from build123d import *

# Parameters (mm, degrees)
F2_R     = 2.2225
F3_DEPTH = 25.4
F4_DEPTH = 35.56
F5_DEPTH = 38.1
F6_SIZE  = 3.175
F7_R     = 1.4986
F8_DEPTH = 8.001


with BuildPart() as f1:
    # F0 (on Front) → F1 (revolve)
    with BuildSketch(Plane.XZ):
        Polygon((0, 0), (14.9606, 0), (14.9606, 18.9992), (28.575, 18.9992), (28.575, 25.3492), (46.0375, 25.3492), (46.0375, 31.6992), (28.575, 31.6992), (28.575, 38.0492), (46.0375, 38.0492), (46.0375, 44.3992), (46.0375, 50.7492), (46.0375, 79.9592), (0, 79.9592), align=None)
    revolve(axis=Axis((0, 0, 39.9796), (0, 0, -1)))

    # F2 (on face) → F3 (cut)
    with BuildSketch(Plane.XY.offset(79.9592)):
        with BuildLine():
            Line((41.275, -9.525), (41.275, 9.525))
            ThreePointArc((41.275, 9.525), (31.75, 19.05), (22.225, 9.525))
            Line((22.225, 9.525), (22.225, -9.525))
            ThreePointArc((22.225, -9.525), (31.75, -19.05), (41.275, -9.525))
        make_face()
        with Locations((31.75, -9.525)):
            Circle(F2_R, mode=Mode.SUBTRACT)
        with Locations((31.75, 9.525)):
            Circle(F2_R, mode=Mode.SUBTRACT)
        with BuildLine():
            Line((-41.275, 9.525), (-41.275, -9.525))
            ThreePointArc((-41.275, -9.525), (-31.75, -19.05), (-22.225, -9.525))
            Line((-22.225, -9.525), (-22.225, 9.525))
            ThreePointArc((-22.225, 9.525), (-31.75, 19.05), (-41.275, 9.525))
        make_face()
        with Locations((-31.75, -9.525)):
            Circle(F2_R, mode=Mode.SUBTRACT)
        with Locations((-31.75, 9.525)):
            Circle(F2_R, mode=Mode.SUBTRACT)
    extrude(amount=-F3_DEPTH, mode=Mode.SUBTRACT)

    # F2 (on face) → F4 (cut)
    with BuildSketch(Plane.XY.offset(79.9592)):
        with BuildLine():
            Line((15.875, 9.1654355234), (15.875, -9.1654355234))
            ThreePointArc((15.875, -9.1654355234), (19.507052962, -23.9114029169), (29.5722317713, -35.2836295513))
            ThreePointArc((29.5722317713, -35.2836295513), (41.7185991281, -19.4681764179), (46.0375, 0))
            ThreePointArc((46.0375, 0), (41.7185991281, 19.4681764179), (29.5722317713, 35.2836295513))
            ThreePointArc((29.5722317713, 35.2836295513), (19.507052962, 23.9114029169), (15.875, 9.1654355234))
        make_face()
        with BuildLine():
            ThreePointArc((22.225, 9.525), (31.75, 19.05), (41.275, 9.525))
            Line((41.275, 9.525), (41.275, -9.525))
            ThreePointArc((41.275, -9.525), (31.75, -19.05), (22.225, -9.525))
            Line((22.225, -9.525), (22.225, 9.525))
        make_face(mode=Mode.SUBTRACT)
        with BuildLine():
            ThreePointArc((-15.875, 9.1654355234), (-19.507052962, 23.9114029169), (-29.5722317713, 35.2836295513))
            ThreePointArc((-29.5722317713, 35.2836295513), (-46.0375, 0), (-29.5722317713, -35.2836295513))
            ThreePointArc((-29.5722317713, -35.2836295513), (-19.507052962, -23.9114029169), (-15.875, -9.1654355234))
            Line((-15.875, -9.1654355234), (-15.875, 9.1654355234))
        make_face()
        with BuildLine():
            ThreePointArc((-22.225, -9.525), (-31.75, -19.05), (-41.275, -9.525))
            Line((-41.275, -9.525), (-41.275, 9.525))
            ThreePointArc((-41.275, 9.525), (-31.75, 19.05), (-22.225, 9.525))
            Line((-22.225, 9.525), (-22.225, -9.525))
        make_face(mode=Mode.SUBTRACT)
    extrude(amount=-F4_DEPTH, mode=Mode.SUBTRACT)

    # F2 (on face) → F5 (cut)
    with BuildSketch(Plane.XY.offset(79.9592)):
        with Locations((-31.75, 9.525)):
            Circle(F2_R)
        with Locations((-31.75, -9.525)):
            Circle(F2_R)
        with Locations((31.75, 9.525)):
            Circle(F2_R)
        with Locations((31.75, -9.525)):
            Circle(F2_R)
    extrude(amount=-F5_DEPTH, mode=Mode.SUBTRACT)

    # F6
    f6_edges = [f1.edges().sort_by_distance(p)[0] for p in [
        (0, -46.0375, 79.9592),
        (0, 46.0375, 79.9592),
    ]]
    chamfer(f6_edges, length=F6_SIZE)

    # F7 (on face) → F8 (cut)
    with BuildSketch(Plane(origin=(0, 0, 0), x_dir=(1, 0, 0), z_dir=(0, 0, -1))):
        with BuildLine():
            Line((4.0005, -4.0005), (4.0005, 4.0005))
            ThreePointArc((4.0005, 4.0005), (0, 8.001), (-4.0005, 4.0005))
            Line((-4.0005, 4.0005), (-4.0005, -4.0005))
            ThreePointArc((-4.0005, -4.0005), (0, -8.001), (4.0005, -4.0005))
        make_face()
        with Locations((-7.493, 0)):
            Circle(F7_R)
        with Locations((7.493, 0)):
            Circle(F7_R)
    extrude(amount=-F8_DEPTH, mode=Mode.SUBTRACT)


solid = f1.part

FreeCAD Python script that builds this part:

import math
import FreeCAD as App
import Part
import Sketcher

V = App.Vector
Q = App.Units.Quantity


def edges_at(feature, points):
    """Names of the edges that pass closest to the given points."""
    edges = feature.Shape.Edges
    near = lambda p: min(range(len(edges)), key=lambda i: edges[i].distToShape(Part.Vertex(*p))[0])
    return sorted({f"Edge{near(p) + 1}" for p in points})

doc = App.newDocument("Part")
params = doc.addObject("Spreadsheet::Sheet", "Params")
for row, (alias, value) in enumerate([
    ("sketch1_height", "0.25 in"),
    ("sketch1_height2", "1.65 in"),
    ("sketch1_width", "0.589 in"),
    ("sketch1_width2", "0.536 in"),
    ("sketch1_width3", "0.6875 in"),
    ("revolution_angle", "360 deg"),
    ("sketch2_diameter", "0.175 in"),
    ("sketch2_radius", "0.375 in"),
    ("sketch2_height", "0.75 in"),
    ("pocket1_length", "1 in"),
    ("sketch3_radius", "1.25 in"),
    ("sketch3_radius2", "1.8125 in"),
    ("sketch3_radius3", "0.375 in"),
    ("sketch3_height", "0.75 in"),
    ("pocket2_length", "1.4 in"),
    ("sketch4_diameter", "0.175 in"),
    ("pocket3_length", "1.5 in"),
    ("chamfer_size", "0.125 in"),
    ("sketch5_diameter", "0.118 in"),
    ("sketch5_height", "0.315 in"),
    ("pocket4_length", "0.315 in"),
], start=1):
    params.set(f"A{row}", alias)
    params.set(f"B{row}", "=" + value)
    params.setAlias(f"B{row}", alias)

body = doc.addObject("PartDesign::Body", "Body")

sketch1 = body.newObject("Sketcher::SketchObject", "Sketch")
sketch1.AttachmentSupport = (doc.getObject("XZ_Plane"), [""])
sketch1.MapMode = "FlatFace"
sketch1.addGeometry([
    Part.LineSegment(V(0, 0, 0), V(15, 0, 0)),
    Part.LineSegment(V(15, 0, 0), V(15, 19, 0)),
    Part.LineSegment(V(15, 19, 0), V(29, 19, 0)),
    Part.LineSegment(V(29, 19, 0), V(29, 25, 0)),
    Part.LineSegment(V(29, 25, 0), V(46, 25, 0)),
    Part.LineSegment(V(46, 25, 0), V(46, 32, 0)),
    Part.LineSegment(V(46, 32, 0), V(29, 32, 0)),
    Part.LineSegment(V(29, 32, 0), V(29, 38, 0)),
    Part.LineSegment(V(29, 38, 0), V(46, 38, 0)),
    Part.LineSegment(V(46, 38, 0), V(46, 80, 0)),
    Part.LineSegment(V(46, 80, 0), V(0, 80, 0)),
    Part.LineSegment(V(0, 80, 0), V(0, 0, 0)),
], False)
sketch1.addConstraint([
    Sketcher.Constraint("Coincident", 0, 2, 1, 1),
    Sketcher.Constraint("Coincident", 1, 2, 2, 1),
    Sketcher.Constraint("Coincident", 2, 2, 3, 1),
    Sketcher.Constraint("Coincident", 3, 2, 4, 1),
    Sketcher.Constraint("Coincident", 4, 2, 5, 1),
    Sketcher.Constraint("Coincident", 5, 2, 6, 1),
    Sketcher.Constraint("Coincident", 6, 2, 7, 1),
    Sketcher.Constraint("Coincident", 7, 2, 8, 1),
    Sketcher.Constraint("Coincident", 8, 2, 9, 1),
    Sketcher.Constraint("Coincident", 9, 2, 10, 1),
    Sketcher.Constraint("Coincident", 10, 2, 11, 1),
    Sketcher.Constraint("Coincident", 11, 2, 0, 1),
    Sketcher.Constraint("Horizontal", 0),
    Sketcher.Constraint("Vertical", 1),
    Sketcher.Constraint("Horizontal", 2),
    Sketcher.Constraint("Vertical", 3),
    Sketcher.Constraint("Horizontal", 4),
    Sketcher.Constraint("Vertical", 5),
    Sketcher.Constraint("Horizontal", 6),
    Sketcher.Constraint("Vertical", 7),
    Sketcher.Constraint("Horizontal", 8),
    Sketcher.Constraint("Vertical", 9),
    Sketcher.Constraint("Horizontal", 10),
    Sketcher.Constraint("Vertical", 11),
    Sketcher.Constraint("Coincident", 11, 2, -1, 1),
    Sketcher.Constraint("Vertical", 3, 2, 6, 2),
    Sketcher.Constraint("Vertical", 5, 2, 8, 2),
    Sketcher.Constraint("Equal", 3, 5),
    Sketcher.Constraint("Equal", 5, 7),
    Sketcher.Constraint("DistanceY", 3, 1, 3, 2, Q("0.25 in")),
    Sketcher.Constraint("DistanceY", 9, 1, 9, 2, Q("1.65 in")),
    Sketcher.Constraint("DistanceX", 0, 1, 0, 2, Q("0.589 in")),
    Sketcher.Constraint("DistanceX", 2, 1, 2, 2, Q("0.536 in")),
    Sketcher.Constraint("DistanceX", 4, 1, 4, 2, Q("0.6875 in")),
    Sketcher.Constraint("DistanceY", 1, 1, 1, 2, Q("0.748 in")),
])
sketch1.setExpression("Constraints[29]", "Params.sketch1_height")
sketch1.setExpression("Constraints[30]", "Params.sketch1_height2")
sketch1.setExpression("Constraints[31]", "Params.sketch1_width")
sketch1.setExpression("Constraints[32]", "Params.sketch1_width2")
sketch1.setExpression("Constraints[33]", "Params.sketch1_width3")
revolution = body.newObject("PartDesign::Revolution", "Revolution")
revolution.Profile = sketch1
revolution.ReferenceAxis = (sketch1, ["V_Axis"])
revolution.setExpression("Angle", "Params.revolution_angle")

sketch2 = body.newObject("Sketcher::SketchObject", "Sketch001")
sketch2.AttachmentSupport = (doc.getObject("XY_Plane"), [""])
sketch2.MapMode = "FlatFace"
sketch2.AttachmentOffset = App.Placement(V(0, 0, 3.148 * 25.4), App.Rotation())
sketch2.addGeometry([
    Part.LineSegment(V(41.3, -9.5, 0), V(41.3, 9.5, 0)),
    Part.ArcOfCircle(Part.Circle(V(31.8, 9.5, 0), V(0, 0, 1), 9.5), math.radians(0), math.radians(180)),
    Part.LineSegment(V(22.2, 9.5, 0), V(22.2, -9.5, 0)),
    Part.ArcOfCircle(Part.Circle(V(31.8, -9.5, 0), V(0, 0, 1), 9.5), math.radians(180), math.radians(360)),
    Part.Circle(V(31.8, -9.5, 0), V(0, 0, 1), 2.2),
    Part.Circle(V(31.8, 9.5, 0), V(0, 0, 1), 2.2),
    Part.LineSegment(V(-41.3, 9.5, 0), V(-41.3, -9.5, 0)),
    Part.ArcOfCircle(Part.Circle(V(-31.8, -9.5, 0), V(0, 0, 1), 9.5), math.radians(180), math.radians(360)),
    Part.LineSegment(V(-22.2, -9.5, 0), V(-22.2, 9.5, 0)),
    Part.ArcOfCircle(Part.Circle(V(-31.8, 9.5, 0), V(0, 0, 1), 9.5), math.radians(0), math.radians(180)),
    Part.Circle(V(-31.8, -9.5, 0), V(0, 0, 1), 2.2),
    Part.Circle(V(-31.8, 9.5, 0), V(0, 0, 1), 2.2),
], False)
sketch2.addConstraint([
    Sketcher.Constraint("Tangent", 0, 2, 1, 1),
    Sketcher.Constraint("Tangent", 1, 2, 2, 1),
    Sketcher.Constraint("Tangent", 2, 2, 3, 1),
    Sketcher.Constraint("Tangent", 3, 2, 0, 1),
    Sketcher.Constraint("Tangent", 6, 2, 7, 1),
    Sketcher.Constraint("Tangent", 7, 2, 8, 1),
    Sketcher.Constraint("Tangent", 8, 2, 9, 1),
    Sketcher.Constraint("Tangent", 9, 2, 6, 1),
    Sketcher.Constraint("Vertical", 0),
    Sketcher.Constraint("Vertical", 2),
    Sketcher.Constraint("Vertical", 6),
    Sketcher.Constraint("Vertical", 8),
    Sketcher.Constraint("Coincident", 4, 3, 3, 3),
    Sketcher.Constraint("Coincident", 5, 3, 1, 3),
    Sketcher.Constraint("Coincident", 10, 3, 7, 3),
    Sketcher.Constraint("Coincident", 11, 3, 9, 3),
    Sketcher.Constraint("Equal", 4, 5),
    Sketcher.Constraint("Equal", 3, 7),
    Sketcher.Constraint("Equal", 5, 10),
    Sketcher.Constraint("Equal", 10, 11),
    Sketcher.Constraint("Symmetric", 1, 3, 7, 3, -1, 1),
    Sketcher.Constraint("Horizontal", 4, 3, 7, 3),
    Sketcher.Constraint("Horizontal", 5, 3, 9, 3),
    Sketcher.Constraint("Diameter", 4, Q("0.175 in")),
    Sketcher.Constraint("Radius", 1, Q("0.375 in")),
    Sketcher.Constraint("DistanceY", 0, 1, 0, 2, Q("0.75 in")),
    Sketcher.Constraint("DistanceX", 7, 3, 3, 3, Q("2.5 in")),
])
sketch2.setExpression("Constraints[23]", "Params.sketch2_diameter")
sketch2.setExpression("Constraints[24]", "Params.sketch2_radius")
sketch2.setExpression("Constraints[25]", "Params.sketch2_height")
pocket1 = body.newObject("PartDesign::Pocket", "Pocket")
pocket1.Profile = sketch2
pocket1.setExpression("Length", "Params.pocket1_length")

sketch3 = body.newObject("Sketcher::SketchObject", "Sketch002")
sketch3.AttachmentSupport = (doc.getObject("XY_Plane"), [""])
sketch3.MapMode = "FlatFace"
sketch3.AttachmentOffset = App.Placement(V(0, 0, 3.148 * 25.4), App.Rotation())
sketch3.addGeometry([
    Part.LineSegment(V(16, 9, 0), V(16, -9, 0)),
    Part.ArcOfCircle(Part.Circle(V(48, -9, 0), V(0, 0, 1), 32), math.radians(180), math.radians(235)),
    Part.ArcOfCircle(Part.Circle(V(0, 0, 0), V(0, 0, 1), 46), math.radians(-50), math.radians(50)),
    Part.ArcOfCircle(Part.Circle(V(48, 9, 0), V(0, 0, 1), 32), math.radians(125), math.radians(180)),
    Part.LineSegment(V(22, -10, 0), V(22, 10, 0)),
    Part.ArcOfCircle(Part.Circle(V(32, 10, 0), V(0, 0, 1), 10), math.radians(0), math.radians(180)),
    Part.LineSegment(V(41, 10, 0), V(41, -10, 0)),
    Part.ArcOfCircle(Part.Circle(V(32, -10, 0), V(0, 0, 1), 10), math.radians(180), math.radians(360)),
    Part.ArcOfCircle(Part.Circle(V(-48, 9, 0), V(0, 0, 1), 32), math.radians(0), math.radians(55)),
    Part.ArcOfCircle(Part.Circle(V(0, 0, 0), V(0, 0, 1), 46), math.radians(130), math.radians(230)),
    Part.ArcOfCircle(Part.Circle(V(-48, -9, 0), V(0, 0, 1), 32), math.radians(-55), math.radians(0)),
    Part.LineSegment(V(-16, -9, 0), V(-16, 9, 0)),
    Part.LineSegment(V(-22, 10, 0), V(-22, -10, 0)),
    Part.ArcOfCircle(Part.Circle(V(-32, -10, 0), V(0, 0, 1), 10), math.radians(180), math.radians(360)),
    Part.LineSegment(V(-41, -10, 0), V(-41, 10, 0)),
    Part.ArcOfCircle(Part.Circle(V(-32, 10, 0), V(0, 0, 1), 10), math.radians(0), math.radians(180)),
], False)
sketch3.addConstraint([
    Sketcher.Constraint("Tangent", 0, 2, 1, 1),
    Sketcher.Constraint("Coincident", 1, 2, 2, 1),
    Sketcher.Constraint("Coincident", 2, 2, 3, 1),
    Sketcher.Constraint("Tangent", 3, 2, 0, 1),
    Sketcher.Constraint("Tangent", 4, 2, 5, 2),
    Sketcher.Constraint("Tangent", 5, 1, 6, 1),
    Sketcher.Constraint("Tangent", 6, 2, 7, 2),
    Sketcher.Constraint("Tangent", 7, 1, 4, 1),
    Sketcher.Constraint("Coincident", 8, 2, 9, 1),
    Sketcher.Constraint("Coincident", 9, 2, 10, 1),
    Sketcher.Constraint("Tangent", 10, 2, 11, 1),
    Sketcher.Constraint("Tangent", 11, 2, 8, 1),
    Sketcher.Constraint("Tangent", 12, 2, 13, 2),
    Sketcher.Constraint("Tangent", 13, 1, 14, 1),
    Sketcher.Constraint("Tangent", 14, 2, 15, 2),
    Sketcher.Constraint("Tangent", 15, 1, 12, 1),
    Sketcher.Constraint("Vertical", 0),
    Sketcher.Constraint("Vertical", 4),
    Sketcher.Constraint("Vertical", 6),
    Sketcher.Constraint("Vertical", 11),
    Sketcher.Constraint("Vertical", 12),
    Sketcher.Constraint("Vertical", 14),
    Sketcher.Constraint("Coincident", 2, 3, -1, 1),
    Sketcher.Constraint("Coincident", 9, 3, -1, 1),
    Sketcher.Constraint("Equal", 1, 3),
    Sketcher.Constraint("Equal", 3, 8),
    Sketcher.Constraint("Equal", 2, 9),
    Sketcher.Constraint("Equal", 8, 10),
    Sketcher.Constraint("Equal", 7, 13),
    Sketcher.Constraint("Symmetric", 1, 3, 8, 3, -1, 1),
    Sketcher.Constraint("Symmetric", 5, 3, 13, 3, -1, 1),
    Sketcher.Constraint("Horizontal", 3, 3, 8, 3),
    Sketcher.Constraint("Horizontal", 1, 3, 10, 3),
    Sketcher.Constraint("Horizontal", 7, 3, 13, 3),
    Sketcher.Constraint("Horizontal", 5, 3, 15, 3),
    Sketcher.Constraint("Radius", 1, Q("1.25 in")),
    Sketcher.Constraint("Radius", 2, Q("1.8125 in")),
    Sketcher.Constraint("Radius", 5, Q("0.375 in")),
    Sketcher.Constraint("DistanceY", 4, 1, 4, 2, Q("0.75 in")),
    Sketcher.Constraint("DistanceX", 13, 3, 7, 3, Q("2.5 in")),
    Sketcher.Constraint("DistanceX", 8, 3, 3, 3, Q("3.75 in")),
    Sketcher.Constraint("DistanceY", 0, 2, 0, 1, 18.330871),
])
sketch3.setExpression("Constraints[35]", "Params.sketch3_radius")
sketch3.setExpression("Constraints[36]", "Params.sketch3_radius2")
sketch3.setExpression("Constraints[37]", "Params.sketch3_radius3")
sketch3.setExpression("Constraints[38]", "Params.sketch3_height")
pocket2 = body.newObject("PartDesign::Pocket", "Pocket001")
pocket2.Profile = sketch3
pocket2.setExpression("Length", "Params.pocket2_length")

sketch4 = body.newObject("Sketcher::SketchObject", "Sketch003")
sketch4.AttachmentSupport = (doc.getObject("XY_Plane"), [""])
sketch4.MapMode = "FlatFace"
sketch4.AttachmentOffset = App.Placement(V(0, 0, 3.148 * 25.4), App.Rotation())
sketch4.addGeometry([
    Part.Circle(V(-31.8, 9.5, 0), V(0, 0, 1), 2.2),
    Part.Circle(V(-31.8, -9.5, 0), V(0, 0, 1), 2.2),
    Part.Circle(V(31.8, 9.5, 0), V(0, 0, 1), 2.2),
    Part.Circle(V(31.8, -9.5, 0), V(0, 0, 1), 2.2),
], False)
sketch4.addConstraint([
    Sketcher.Constraint("Equal", 0, 1),
    Sketcher.Constraint("Equal", 1, 2),
    Sketcher.Constraint("Equal", 2, 3),
    Sketcher.Constraint("Symmetric", 1, 3, 2, 3, -1, 1),
    Sketcher.Constraint("Symmetric", 0, 3, 3, 3, -1, 1),
    Sketcher.Constraint("Symmetric", 0, 3, 2, 3, -2),
    Sketcher.Constraint("Diameter", 0, Q("0.175 in")),
    Sketcher.Constraint("DistanceX", 0, 3, 2, 3, Q("2.5 in")),
    Sketcher.Constraint("DistanceY", 1, 3, 0, 3, Q("0.75 in")),
])
sketch4.setExpression("Constraints[6]", "Params.sketch4_diameter")
pocket3 = body.newObject("PartDesign::Pocket", "Pocket002")
pocket3.Profile = sketch4
pocket3.setExpression("Length", "Params.pocket3_length")
doc.recompute()

chamfer = body.newObject("PartDesign::Chamfer", "Chamfer")
chamfer.Base = (pocket3, edges_at(pocket3, [(0, -46.038, 79.959), (0, 46.038, 79.959)]))
chamfer.setExpression("Size", "Params.chamfer_size")

sketch5 = body.newObject("Sketcher::SketchObject", "Sketch004")
sketch5.AttachmentSupport = (doc.getObject("XY_Plane"), [""])
sketch5.MapMode = "FlatFace"
sketch5.addGeometry([
    Part.LineSegment(V(4, 4, 0), V(4, -4, 0)),
    Part.ArcOfCircle(Part.Circle(V(0, -4, 0), V(0, 0, 1), 4), math.radians(180), math.radians(360)),
    Part.LineSegment(V(-4, -4, 0), V(-4, 4, 0)),
    Part.ArcOfCircle(Part.Circle(V(0, 4, 0), V(0, 0, 1), 4), math.radians(0), math.radians(180)),
    Part.Circle(V(-7.5, 0, 0), V(0, 0, 1), 1.5),
    Part.Circle(V(7.5, 0, 0), V(0, 0, 1), 1.5),
], False)
sketch5.addConstraint([
    Sketcher.Constraint("Tangent", 0, 2, 1, 2),
    Sketcher.Constraint("Tangent", 1, 1, 2, 1),
    Sketcher.Constraint("Tangent", 2, 2, 3, 2),
    Sketcher.Constraint("Tangent", 3, 1, 0, 1),
    Sketcher.Constraint("Vertical", 0),
    Sketcher.Constraint("Vertical", 2),
    Sketcher.Constraint("Equal", 4, 5),
    Sketcher.Constraint("Symmetric", 1, 3, 3, 3, -1, 1),
    Sketcher.Constraint("Symmetric", 4, 3, 5, 3, -1, 1),
    Sketcher.Constraint("PointOnObject", 4, 3, -1),
    Sketcher.Constraint("Diameter", 4, Q("0.118 in")),
    Sketcher.Constraint("Radius", 1, Q("0.1575 in")),
    Sketcher.Constraint("DistanceY", 0, 2, 0, 1, Q("0.315 in")),
    Sketcher.Constraint("DistanceX", 4, 3, 5, 3, Q("0.59 in")),
])
sketch5.setExpression("Constraints[10]", "Params.sketch5_diameter")
sketch5.setExpression("Constraints[12]", "Params.sketch5_height")
pocket4 = body.newObject("PartDesign::Pocket", "Pocket003")
pocket4.Profile = sketch5
pocket4.setExpression("Length", "Params.pocket4_length")
pocket4.Reversed = True

doc.recompute()
